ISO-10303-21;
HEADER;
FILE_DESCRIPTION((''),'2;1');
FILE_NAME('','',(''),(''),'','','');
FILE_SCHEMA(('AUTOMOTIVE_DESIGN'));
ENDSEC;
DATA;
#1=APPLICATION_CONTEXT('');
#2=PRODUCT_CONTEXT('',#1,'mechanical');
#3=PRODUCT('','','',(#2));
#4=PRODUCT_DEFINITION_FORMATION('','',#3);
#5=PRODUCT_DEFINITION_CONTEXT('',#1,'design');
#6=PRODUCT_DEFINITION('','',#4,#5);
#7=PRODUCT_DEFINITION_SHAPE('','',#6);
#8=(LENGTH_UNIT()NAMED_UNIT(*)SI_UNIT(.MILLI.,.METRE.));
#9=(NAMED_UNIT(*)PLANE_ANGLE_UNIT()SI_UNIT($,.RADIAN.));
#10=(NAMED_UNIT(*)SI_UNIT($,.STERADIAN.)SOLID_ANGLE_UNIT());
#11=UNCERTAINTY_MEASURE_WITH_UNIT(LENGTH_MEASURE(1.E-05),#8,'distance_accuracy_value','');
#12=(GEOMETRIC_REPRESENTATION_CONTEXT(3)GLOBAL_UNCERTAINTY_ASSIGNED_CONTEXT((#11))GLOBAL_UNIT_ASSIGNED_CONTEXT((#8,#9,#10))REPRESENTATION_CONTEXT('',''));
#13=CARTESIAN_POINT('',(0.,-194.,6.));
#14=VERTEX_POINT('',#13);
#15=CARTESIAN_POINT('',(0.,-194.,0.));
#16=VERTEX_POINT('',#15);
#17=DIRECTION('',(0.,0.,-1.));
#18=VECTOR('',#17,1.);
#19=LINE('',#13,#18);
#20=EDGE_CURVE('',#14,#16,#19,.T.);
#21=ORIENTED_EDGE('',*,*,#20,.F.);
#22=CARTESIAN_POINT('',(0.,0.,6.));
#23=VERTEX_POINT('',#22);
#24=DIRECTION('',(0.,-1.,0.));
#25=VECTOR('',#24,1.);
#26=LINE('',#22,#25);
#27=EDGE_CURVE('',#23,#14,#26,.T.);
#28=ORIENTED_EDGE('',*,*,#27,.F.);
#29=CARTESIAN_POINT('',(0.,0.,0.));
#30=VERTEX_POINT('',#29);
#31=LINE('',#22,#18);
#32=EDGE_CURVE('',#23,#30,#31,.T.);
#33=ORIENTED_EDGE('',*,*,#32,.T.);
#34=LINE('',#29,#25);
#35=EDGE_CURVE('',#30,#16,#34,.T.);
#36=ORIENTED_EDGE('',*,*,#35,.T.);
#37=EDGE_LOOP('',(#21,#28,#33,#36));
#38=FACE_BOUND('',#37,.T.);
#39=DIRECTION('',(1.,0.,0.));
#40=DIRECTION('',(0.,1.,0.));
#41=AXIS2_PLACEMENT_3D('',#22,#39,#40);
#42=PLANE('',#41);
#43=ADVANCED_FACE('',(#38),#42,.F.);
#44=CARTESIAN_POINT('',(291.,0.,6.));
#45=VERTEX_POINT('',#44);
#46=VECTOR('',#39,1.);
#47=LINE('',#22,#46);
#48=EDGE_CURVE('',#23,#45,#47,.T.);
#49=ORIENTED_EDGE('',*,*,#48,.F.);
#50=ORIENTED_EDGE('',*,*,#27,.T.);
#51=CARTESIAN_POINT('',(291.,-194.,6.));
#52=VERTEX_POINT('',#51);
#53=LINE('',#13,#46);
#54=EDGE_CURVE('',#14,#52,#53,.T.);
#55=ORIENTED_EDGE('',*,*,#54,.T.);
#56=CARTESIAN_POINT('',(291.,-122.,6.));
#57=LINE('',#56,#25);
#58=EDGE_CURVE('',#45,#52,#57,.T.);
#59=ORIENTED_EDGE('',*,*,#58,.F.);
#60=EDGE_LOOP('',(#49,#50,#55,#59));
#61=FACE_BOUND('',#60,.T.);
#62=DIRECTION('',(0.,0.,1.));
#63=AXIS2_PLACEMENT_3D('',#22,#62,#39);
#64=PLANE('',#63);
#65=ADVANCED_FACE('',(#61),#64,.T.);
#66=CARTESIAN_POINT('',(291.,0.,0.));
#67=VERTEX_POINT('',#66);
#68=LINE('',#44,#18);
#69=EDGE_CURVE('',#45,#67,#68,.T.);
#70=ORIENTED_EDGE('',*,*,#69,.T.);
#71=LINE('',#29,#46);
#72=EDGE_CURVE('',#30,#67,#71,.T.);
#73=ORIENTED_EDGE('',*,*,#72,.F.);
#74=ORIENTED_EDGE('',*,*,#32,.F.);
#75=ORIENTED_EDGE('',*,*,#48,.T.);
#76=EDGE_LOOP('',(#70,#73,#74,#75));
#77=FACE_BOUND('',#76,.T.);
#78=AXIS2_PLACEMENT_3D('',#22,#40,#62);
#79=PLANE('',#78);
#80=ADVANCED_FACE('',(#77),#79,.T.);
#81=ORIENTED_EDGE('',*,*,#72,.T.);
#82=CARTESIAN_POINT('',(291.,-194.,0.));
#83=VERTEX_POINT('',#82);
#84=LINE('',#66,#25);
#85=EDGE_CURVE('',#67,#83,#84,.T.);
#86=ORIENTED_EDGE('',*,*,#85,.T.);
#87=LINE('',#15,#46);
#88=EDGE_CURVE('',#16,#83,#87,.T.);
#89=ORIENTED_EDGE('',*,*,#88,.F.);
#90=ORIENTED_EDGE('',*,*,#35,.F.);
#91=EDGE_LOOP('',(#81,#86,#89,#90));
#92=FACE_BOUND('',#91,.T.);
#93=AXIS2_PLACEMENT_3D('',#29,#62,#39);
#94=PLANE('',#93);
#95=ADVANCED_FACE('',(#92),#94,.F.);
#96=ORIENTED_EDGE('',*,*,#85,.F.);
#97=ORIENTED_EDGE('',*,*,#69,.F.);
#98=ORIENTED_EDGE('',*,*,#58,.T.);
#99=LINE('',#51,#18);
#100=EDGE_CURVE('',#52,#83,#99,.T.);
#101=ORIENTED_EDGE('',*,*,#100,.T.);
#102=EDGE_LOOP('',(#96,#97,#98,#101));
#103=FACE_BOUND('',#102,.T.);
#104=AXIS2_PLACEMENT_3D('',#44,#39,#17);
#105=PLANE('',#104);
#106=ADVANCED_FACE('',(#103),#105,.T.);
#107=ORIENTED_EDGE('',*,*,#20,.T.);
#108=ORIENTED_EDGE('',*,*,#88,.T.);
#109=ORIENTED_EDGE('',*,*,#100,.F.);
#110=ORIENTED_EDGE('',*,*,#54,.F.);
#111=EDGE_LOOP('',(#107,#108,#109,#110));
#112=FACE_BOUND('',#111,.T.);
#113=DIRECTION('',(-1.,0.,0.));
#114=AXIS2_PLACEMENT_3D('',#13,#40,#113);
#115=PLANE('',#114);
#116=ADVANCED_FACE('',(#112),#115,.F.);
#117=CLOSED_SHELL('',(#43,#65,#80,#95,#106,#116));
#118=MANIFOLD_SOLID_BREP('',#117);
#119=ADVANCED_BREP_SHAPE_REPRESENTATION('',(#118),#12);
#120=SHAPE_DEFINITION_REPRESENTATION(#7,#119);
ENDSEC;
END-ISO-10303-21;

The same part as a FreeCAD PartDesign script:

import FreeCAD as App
import Part
import Sketcher
Q = App.Units.Quantity

doc = App.newDocument("Part")
body = doc.addObject("PartDesign::Body", "Body")

sketch1 = body.newObject("Sketcher::SketchObject", "Sketch")
sketch1.AttachmentSupport = (doc.getObject("XY_Plane"), [""])
sketch1.MapMode = "FlatFace"
sketch1.addGeometry(Part.LineSegment(App.Vector(0, 0, 0), App.Vector(0, -194, 0)), False)
sketch1.addGeometry(Part.LineSegment(App.Vector(0, -194, 0), App.Vector(291, -194, 0)), False)
sketch1.addGeometry(Part.LineSegment(App.Vector(291, -194, 0), App.Vector(291, 0, 0)), False)
sketch1.addGeometry(Part.LineSegment(App.Vector(291, 0, 0), App.Vector(0, 0, 0)), False)
sketch1.addConstraint(Sketcher.Constraint("Coincident", 0, 2, 1, 1))
sketch1.addConstraint(Sketcher.Constraint("Coincident", 1, 2, 2, 1))
sketch1.addConstraint(Sketcher.Constraint("Coincident", 2, 2, 3, 1))
sketch1.addConstraint(Sketcher.Constraint("Coincident", 3, 2, 0, 1))
sketch1.addConstraint(Sketcher.Constraint("Vertical", 0))
sketch1.addConstraint(Sketcher.Constraint("Horizontal", 1))
sketch1.addConstraint(Sketcher.Constraint("Vertical", 2))
sketch1.addConstraint(Sketcher.Constraint("Horizontal", 3))
sketch1.addConstraint(Sketcher.Constraint("Coincident", 3, 2, -1, 1))
sketch1.addConstraint(Sketcher.Constraint("DistanceX", 1, 1, 1, 2, Q("291 mm")))
sketch1.addConstraint(Sketcher.Constraint("DistanceY", 0, 2, 0, 1, Q("194 mm")))
pad1 = body.newObject("PartDesign::Pad", "Pad")
pad1.Profile = sketch1
pad1.Length = 6

doc.recompute()
